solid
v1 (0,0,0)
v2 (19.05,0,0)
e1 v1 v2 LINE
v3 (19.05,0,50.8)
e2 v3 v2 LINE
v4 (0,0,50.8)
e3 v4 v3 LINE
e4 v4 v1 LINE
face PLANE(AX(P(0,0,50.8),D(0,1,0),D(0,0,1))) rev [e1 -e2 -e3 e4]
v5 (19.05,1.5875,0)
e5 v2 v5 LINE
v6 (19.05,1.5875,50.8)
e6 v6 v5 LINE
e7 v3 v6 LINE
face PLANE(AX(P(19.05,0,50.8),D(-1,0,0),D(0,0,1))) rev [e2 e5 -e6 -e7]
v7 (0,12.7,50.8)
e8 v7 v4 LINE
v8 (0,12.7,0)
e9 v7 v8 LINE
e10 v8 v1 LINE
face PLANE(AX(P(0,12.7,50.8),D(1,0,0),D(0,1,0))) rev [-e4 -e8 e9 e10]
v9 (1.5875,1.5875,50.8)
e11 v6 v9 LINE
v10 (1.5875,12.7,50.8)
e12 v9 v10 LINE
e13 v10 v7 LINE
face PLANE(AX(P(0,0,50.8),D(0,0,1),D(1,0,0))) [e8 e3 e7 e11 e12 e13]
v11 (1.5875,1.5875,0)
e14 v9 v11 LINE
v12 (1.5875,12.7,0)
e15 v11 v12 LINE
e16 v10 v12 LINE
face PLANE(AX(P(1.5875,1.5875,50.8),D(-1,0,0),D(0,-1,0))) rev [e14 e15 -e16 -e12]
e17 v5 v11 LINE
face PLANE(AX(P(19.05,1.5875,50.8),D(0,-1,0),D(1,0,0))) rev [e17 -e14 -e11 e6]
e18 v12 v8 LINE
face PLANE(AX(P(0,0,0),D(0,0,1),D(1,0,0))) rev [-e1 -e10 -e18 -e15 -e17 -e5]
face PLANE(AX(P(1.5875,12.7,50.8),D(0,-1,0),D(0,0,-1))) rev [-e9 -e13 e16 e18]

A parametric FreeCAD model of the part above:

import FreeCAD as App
import Part
import Sketcher

V = App.Vector
Q = App.Units.Quantity

doc = App.newDocument("Part")
body = doc.addObject("PartDesign::Body", "Body")

# Sketch on XY plane
sketch1 = body.newObject("Sketcher::SketchObject", "Sketch")
sketch1.AttachmentSupport = (doc.getObject("XY_Plane"), [""])
sketch1.MapMode = "FlatFace"
sketch1.addGeometry([
    Part.LineSegment(V(0, 0, 0), V(19.1, 0, 0)),  # 0
    Part.LineSegment(V(19.1, 0, 0), V(19.1, 1.6, 0)),  # 1
    Part.LineSegment(V(19.1, 1.6, 0), V(1.6, 1.6, 0)),  # 2
    Part.LineSegment(V(1.6, 1.6, 0), V(1.6, 12.7, 0)),  # 3
    Part.LineSegment(V(1.6, 12.7, 0), V(0, 12.7, 0)),  # 4
    Part.LineSegment(V(0, 12.7, 0), V(0, 0, 0)),  # 5
], False)
sketch1.addConstraint([
    Sketcher.Constraint("Coincident", 0, 2, 1, 1),
    Sketcher.Constraint("Coincident", 1, 2, 2, 1),
    Sketcher.Constraint("Coincident", 2, 2, 3, 1),
    Sketcher.Constraint("Coincident", 3, 2, 4, 1),
    Sketcher.Constraint("Coincident", 4, 2, 5, 1),
    Sketcher.Constraint("Coincident", 5, 2, 0, 1),
    Sketcher.Constraint("Horizontal", 0),
    Sketcher.Constraint("Vertical", 1),
    Sketcher.Constraint("Horizontal", 2),
    Sketcher.Constraint("Vertical", 3),
    Sketcher.Constraint("Horizontal", 4),
    Sketcher.Constraint("Vertical", 5),
    Sketcher.Constraint("Coincident", 5, 2, -1, 1),
    Sketcher.Constraint("Equal", 4, 1),
    Sketcher.Constraint("DistanceY", 5, 2, 5, 1, Q("0.5 in")),
    Sketcher.Constraint("DistanceX", 0, 1, 0, 2, Q("0.75 in")),
    Sketcher.Constraint("DistanceX", 2, 2, 2, 1, Q("0.6875 in")),
])
pad1 = body.newObject("PartDesign::Pad", "Pad")
pad1.Profile = sketch1
pad1.Length = Q("2 in")

doc.recompute()
